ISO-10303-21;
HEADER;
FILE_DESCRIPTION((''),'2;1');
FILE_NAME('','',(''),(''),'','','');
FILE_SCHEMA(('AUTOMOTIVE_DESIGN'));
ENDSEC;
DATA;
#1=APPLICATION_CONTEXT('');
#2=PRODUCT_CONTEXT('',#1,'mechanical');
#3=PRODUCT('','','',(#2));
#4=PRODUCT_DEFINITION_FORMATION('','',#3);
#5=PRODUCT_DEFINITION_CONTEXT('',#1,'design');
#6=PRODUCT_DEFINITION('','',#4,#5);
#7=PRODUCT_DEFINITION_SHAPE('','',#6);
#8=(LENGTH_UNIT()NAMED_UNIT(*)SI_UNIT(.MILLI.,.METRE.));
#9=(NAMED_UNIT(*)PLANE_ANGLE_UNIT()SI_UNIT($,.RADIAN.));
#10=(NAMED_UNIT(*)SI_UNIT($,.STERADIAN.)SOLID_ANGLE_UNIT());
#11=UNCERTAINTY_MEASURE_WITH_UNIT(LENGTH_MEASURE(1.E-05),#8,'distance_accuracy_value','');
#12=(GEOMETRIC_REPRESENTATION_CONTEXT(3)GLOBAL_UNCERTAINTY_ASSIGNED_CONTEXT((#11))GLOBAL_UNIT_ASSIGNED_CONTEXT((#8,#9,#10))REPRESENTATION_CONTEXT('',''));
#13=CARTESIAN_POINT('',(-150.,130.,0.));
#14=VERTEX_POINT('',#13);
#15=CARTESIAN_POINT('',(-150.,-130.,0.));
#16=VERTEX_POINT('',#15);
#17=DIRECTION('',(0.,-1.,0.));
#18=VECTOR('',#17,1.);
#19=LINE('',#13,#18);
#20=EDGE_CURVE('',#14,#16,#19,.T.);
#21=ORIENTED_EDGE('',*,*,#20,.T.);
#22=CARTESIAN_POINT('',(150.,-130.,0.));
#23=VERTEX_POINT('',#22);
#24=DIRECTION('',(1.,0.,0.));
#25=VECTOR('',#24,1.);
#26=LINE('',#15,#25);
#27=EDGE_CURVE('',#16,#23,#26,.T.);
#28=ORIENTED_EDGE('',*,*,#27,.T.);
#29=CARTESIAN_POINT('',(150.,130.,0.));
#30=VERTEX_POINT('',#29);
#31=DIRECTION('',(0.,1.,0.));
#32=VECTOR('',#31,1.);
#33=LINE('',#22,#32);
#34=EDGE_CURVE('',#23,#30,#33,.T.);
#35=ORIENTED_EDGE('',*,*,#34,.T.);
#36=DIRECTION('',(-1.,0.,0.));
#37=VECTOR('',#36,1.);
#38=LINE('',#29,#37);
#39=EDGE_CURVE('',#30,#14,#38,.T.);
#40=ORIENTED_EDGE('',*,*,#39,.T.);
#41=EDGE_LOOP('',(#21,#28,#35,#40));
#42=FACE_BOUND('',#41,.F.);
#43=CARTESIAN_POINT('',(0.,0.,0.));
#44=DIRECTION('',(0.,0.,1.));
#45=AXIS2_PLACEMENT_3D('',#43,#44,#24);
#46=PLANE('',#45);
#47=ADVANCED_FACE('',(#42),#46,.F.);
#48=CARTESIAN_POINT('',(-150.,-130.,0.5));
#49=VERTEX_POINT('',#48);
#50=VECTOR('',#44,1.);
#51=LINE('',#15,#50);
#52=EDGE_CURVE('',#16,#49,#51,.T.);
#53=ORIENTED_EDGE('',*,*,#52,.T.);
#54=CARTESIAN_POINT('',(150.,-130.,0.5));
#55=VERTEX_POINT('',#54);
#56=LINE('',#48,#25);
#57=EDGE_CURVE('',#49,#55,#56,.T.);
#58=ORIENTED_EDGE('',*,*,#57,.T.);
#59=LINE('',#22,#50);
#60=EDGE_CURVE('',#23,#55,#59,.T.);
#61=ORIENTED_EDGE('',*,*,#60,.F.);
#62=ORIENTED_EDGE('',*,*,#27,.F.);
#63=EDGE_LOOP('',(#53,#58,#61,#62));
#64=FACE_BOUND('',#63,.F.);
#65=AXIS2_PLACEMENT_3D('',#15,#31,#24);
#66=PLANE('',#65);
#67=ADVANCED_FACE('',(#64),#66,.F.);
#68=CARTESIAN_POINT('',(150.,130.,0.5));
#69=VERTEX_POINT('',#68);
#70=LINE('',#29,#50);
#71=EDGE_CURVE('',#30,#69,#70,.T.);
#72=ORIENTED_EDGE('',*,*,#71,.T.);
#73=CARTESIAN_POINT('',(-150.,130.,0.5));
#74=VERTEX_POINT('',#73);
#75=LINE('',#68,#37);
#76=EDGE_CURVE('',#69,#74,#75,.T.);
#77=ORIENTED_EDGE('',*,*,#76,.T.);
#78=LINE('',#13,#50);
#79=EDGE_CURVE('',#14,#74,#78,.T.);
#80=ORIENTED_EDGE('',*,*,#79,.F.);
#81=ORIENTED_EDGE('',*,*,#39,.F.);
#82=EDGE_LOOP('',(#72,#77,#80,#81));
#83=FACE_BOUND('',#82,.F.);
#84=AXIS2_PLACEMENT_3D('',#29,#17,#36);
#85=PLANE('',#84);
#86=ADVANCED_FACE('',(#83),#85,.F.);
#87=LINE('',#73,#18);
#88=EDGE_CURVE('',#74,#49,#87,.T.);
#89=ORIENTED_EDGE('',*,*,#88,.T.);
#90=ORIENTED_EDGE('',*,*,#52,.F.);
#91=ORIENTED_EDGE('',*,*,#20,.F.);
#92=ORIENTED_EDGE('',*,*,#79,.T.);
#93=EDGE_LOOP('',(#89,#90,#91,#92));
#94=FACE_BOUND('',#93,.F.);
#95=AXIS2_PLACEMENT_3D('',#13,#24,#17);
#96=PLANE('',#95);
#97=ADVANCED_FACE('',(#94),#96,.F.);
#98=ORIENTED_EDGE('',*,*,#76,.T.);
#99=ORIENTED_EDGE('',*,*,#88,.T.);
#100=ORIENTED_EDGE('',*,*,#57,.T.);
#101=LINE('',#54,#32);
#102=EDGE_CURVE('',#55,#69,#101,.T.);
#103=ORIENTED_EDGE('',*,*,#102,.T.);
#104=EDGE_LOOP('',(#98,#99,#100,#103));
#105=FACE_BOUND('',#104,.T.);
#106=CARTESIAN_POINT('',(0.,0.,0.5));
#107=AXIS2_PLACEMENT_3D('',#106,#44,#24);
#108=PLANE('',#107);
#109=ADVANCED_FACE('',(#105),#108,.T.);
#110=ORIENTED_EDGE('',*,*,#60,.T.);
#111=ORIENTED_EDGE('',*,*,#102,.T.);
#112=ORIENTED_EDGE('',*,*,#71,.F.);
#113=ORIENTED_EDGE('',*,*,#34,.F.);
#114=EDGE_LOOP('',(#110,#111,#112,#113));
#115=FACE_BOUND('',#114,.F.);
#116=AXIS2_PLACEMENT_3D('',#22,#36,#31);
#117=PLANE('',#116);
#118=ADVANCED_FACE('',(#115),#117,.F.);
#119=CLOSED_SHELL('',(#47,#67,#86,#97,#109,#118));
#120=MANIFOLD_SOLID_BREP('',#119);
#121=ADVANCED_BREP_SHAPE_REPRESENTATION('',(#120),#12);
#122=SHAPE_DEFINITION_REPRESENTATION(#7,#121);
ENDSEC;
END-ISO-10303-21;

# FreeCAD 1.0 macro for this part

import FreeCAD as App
import Part
import Sketcher
from FreeCAD import Vector


def add_polygon(sketch, points):
    """Adds a closed chain of lines whose ends are joined by coincident constraints."""
    first, n = sketch.GeometryCount, len(points)
    for a, b in zip(points, points[1:] + points[:1]):
        sketch.addGeometry(Part.LineSegment(App.Vector(*a, 0), App.Vector(*b, 0)), False)
    for i in range(n):
        sketch.addConstraint(Sketcher.Constraint("Coincident", first + i, 2, first + (i + 1) % n, 1))

doc = App.newDocument("Part")
body = doc.addObject("PartDesign::Body", "Body")

# Sketch on XY plane
sketch1 = doc.addObject("Sketcher::SketchObject", "Sketch")
body.addObject(sketch1)
sketch1.AttachmentSupport = (doc.XY_Plane, [""])
sketch1.MapMode = "FlatFace"
add_polygon(sketch1, [(-150, 130), (-150, -130), (150, -130), (150, 130)])  # lines 0-3
sketch1.addConstraint(Sketcher.Constraint("Vertical", 0))
sketch1.addConstraint(Sketcher.Constraint("Horizontal", 1))
sketch1.addConstraint(Sketcher.Constraint("Vertical", 2))
sketch1.addConstraint(Sketcher.Constraint("Horizontal", 3))
sketch1.addConstraint(Sketcher.Constraint("Symmetric", 0, 2, 2, 2, -1, 1))
sketch1.addConstraint(Sketcher.Constraint("DistanceX", 1, 1, 1, 2, 300.0))
sketch1.addConstraint(Sketcher.Constraint("DistanceY", 0, 2, 0, 1, 260.0))
pad1 = doc.addObject("PartDesign::Pad", "Pad")
body.addObject(pad1)
pad1.Profile = sketch1
pad1.Length = 0.5

doc.recompute()
